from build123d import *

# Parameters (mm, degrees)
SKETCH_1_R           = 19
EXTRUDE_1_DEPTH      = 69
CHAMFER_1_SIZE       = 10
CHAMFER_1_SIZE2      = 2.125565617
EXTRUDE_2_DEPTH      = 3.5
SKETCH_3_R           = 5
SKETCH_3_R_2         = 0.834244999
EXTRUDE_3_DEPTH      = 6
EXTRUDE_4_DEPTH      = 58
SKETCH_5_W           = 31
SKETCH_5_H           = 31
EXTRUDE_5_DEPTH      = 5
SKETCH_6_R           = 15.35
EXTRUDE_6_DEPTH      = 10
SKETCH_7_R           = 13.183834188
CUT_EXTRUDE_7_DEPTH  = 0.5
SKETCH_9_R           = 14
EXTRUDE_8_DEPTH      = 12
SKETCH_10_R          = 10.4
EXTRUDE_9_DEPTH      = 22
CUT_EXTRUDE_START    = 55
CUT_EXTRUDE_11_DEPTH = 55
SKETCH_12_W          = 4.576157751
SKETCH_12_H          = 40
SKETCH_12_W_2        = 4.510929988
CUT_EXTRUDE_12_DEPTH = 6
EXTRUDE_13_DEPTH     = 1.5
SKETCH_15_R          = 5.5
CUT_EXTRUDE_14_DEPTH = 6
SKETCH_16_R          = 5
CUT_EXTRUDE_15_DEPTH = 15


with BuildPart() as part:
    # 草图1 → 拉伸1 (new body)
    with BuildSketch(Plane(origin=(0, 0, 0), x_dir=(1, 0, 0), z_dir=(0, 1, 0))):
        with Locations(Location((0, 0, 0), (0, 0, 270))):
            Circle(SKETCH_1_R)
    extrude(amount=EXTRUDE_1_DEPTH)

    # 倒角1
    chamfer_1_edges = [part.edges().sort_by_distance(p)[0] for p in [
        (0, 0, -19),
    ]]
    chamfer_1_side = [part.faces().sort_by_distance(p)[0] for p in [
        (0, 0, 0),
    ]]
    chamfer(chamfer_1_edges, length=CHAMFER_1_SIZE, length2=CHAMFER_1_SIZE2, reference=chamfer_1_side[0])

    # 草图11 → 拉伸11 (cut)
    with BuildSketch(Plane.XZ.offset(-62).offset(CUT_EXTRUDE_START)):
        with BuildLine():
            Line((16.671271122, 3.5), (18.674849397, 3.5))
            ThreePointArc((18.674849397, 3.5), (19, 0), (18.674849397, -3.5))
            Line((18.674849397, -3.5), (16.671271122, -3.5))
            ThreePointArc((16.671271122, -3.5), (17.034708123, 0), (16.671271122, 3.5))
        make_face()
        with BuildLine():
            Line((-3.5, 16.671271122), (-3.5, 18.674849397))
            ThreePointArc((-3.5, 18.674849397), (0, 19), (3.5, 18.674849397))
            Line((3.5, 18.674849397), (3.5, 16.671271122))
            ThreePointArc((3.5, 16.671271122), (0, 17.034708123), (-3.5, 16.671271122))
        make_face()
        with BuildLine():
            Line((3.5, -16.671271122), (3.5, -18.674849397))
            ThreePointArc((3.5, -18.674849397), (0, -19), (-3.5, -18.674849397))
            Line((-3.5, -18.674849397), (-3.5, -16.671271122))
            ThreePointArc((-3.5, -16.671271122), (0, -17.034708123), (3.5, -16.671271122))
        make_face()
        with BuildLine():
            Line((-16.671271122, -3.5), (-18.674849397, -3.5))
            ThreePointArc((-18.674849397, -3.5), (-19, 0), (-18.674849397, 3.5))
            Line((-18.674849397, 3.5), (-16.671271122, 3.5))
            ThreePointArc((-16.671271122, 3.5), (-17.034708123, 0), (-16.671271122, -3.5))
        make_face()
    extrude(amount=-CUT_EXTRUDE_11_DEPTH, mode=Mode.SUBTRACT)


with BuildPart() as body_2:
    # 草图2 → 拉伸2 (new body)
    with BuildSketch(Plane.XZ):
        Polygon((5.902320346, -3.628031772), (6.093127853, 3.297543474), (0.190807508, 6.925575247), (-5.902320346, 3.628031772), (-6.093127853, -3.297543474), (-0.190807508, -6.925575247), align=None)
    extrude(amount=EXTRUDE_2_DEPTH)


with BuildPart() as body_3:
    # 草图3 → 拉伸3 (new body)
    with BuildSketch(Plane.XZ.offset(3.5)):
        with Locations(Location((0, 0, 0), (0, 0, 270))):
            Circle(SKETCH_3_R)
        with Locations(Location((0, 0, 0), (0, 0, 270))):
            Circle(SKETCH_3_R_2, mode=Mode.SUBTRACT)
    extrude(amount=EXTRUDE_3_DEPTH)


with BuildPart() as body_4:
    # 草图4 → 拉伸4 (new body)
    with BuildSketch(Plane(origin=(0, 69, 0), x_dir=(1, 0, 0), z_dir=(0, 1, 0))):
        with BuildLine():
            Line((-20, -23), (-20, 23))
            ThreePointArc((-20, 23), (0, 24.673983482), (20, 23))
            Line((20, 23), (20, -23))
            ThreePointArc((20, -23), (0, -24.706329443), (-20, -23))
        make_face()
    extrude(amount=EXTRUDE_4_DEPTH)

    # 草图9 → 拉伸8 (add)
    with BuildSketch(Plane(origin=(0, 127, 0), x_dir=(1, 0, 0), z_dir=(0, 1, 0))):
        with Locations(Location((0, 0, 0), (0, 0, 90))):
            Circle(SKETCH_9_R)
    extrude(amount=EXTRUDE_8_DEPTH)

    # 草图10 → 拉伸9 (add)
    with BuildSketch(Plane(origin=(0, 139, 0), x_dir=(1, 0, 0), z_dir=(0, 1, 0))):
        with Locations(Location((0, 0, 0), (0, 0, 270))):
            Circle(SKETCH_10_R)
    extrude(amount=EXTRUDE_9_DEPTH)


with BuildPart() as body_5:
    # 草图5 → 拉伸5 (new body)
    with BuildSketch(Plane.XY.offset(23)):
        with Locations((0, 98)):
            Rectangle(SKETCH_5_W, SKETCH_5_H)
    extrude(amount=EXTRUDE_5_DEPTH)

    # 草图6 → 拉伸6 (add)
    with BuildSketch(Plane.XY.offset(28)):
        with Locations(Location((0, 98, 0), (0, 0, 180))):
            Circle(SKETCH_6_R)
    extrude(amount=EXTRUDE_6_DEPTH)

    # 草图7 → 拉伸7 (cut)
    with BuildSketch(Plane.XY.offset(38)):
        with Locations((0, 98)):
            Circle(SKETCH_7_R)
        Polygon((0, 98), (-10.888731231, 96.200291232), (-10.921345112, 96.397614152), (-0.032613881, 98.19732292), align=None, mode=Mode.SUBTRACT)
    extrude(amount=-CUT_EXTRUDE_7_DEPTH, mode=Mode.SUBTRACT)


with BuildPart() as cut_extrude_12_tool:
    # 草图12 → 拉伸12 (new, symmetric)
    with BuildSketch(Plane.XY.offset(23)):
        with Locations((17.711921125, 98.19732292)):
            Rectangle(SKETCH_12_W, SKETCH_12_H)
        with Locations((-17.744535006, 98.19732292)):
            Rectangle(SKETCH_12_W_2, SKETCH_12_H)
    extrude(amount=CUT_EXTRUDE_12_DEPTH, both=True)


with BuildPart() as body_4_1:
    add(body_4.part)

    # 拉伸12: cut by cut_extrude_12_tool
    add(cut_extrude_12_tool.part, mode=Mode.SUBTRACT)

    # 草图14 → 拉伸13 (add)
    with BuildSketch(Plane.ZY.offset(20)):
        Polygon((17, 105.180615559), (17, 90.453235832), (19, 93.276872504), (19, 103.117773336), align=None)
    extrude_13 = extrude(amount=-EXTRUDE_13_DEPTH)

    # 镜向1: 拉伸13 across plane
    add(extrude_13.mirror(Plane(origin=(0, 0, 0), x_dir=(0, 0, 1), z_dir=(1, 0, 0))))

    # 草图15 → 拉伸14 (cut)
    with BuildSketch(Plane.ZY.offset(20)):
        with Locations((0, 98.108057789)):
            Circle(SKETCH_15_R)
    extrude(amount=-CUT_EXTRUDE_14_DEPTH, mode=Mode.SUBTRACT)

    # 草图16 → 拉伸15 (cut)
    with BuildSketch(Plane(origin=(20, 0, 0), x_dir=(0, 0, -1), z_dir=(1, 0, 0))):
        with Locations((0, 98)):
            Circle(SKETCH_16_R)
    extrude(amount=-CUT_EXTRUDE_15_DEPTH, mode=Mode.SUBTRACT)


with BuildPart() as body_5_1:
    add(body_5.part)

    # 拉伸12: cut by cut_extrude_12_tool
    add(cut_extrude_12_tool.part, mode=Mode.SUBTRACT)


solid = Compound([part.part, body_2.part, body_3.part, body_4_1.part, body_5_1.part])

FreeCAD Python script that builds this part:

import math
import FreeCAD as App
import Part
import Sketcher


def edges_at(feature, points):
    """Names of the edges that pass closest to the given points."""
    edges = feature.Shape.Edges
    near = lambda p: min(range(len(edges)), key=lambda i: edges[i].distToShape(Part.Vertex(*p))[0])
    return sorted({f"Edge{near(p) + 1}" for p in points})


def add_polygon(sketch, points):
    """Adds a closed chain of lines whose ends are joined by coincident constraints."""
    first, n = sketch.GeometryCount, len(points)
    for a, b in zip(points, points[1:] + points[:1]):
        sketch.addGeometry(Part.LineSegment(App.Vector(*a, 0), App.Vector(*b, 0)), False)
    for i in range(n):
        sketch.addConstraint(Sketcher.Constraint("Coincident", first + i, 2, first + (i + 1) % n, 1))

doc = App.newDocument("Part")
params = doc.addObject("Spreadsheet::Sheet", "Params")
for row, (alias, value) in enumerate([
    ("sketch1_diameter", "38 mm"),
    ("pad1_length", "69 mm"),
    ("chamfer_size", "10 mm"),
    ("chamfer_size2", "2.125566 mm"),
    ("sketch2_radius", "19 mm"),
    ("pocket1_length", "55 mm"),
    ("pad2_length", "3.5 mm"),
    ("sketch4_diameter", "10 mm"),
    ("pad3_length", "6 mm"),
    ("sketch5_height", "46 mm"),
    ("pad4_length", "58 mm"),
    ("sketch6_diameter", "28 mm"),
    ("pad5_length", "12 mm"),
    ("sketch7_diameter", "20.8 mm"),
    ("pad6_length", "22 mm"),
    ("sketch8_width", "31 mm"),
    ("pad7_length", "5 mm"),
    ("sketch9_diameter", "30.7 mm"),
    ("pad8_length", "10 mm"),
    ("sketch10_length", "0.2 mm"),
    ("pocket2_length", "0.5 mm"),
    ("sketch11_height", "40 mm"),
    ("pad9_length", "12 mm"),
    ("pad10_length", "1.5 mm"),
    ("sketch13_diameter", "11 mm"),
    ("pocket3_length", "6 mm"),
    ("sketch14_diameter", "10 mm"),
    ("pocket4_length", "15 mm"),
], start=1):
    params.set(f"A{row}", alias)
    params.set(f"B{row}", "=" + value)
    params.setAlias(f"B{row}", alias)

body = doc.addObject("PartDesign::Body", "Body")

sketch1 = doc.addObject("Sketcher::SketchObject", "Sketch")
body.addObject(sketch1)
sketch1.AttachmentSupport = (doc.XZ_Plane, [""])
sketch1.MapMode = "FlatFace"
sketch1.addGeometry(Part.Circle(App.Vector(0, 0, 0), App.Vector(0, 0, 1), 19), False)
sketch1.addConstraint(Sketcher.Constraint("Coincident", 0, 3, -1, 1))
sketch1.addConstraint(Sketcher.Constraint("Diameter", 0, 38.0))
sketch1.setExpression("Constraints[1]", "Params.sketch1_diameter")
pad1 = doc.addObject("PartDesign::Pad", "Pad")
body.addObject(pad1)
pad1.Profile = sketch1
pad1.setExpression("Length", "Params.pad1_length")
pad1.Reversed = True
doc.recompute()

chamfer = doc.addObject("PartDesign::Chamfer", "Chamfer")
body.addObject(chamfer)
chamfer.Base = (pad1, edges_at(pad1, [(0, 0, -19)]))
chamfer.ChamferType = "Two distances"
chamfer.setExpression("Size", "Params.chamfer_size")
chamfer.setExpression("Size2", "Params.chamfer_size2")
chamfer.FlipDirection = True

sketch2 = doc.addObject("Sketcher::SketchObject", "Sketch001")
body.addObject(sketch2)
sketch2.AttachmentSupport = (doc.XZ_Plane, [""])
sketch2.MapMode = "FlatFace"
sketch2.AttachmentOffset = App.Placement(App.Vector(0, 0, -7), App.Rotation())
sketch2.addGeometry(Part.LineSegment(App.Vector(18.674849, 3.5, 0), App.Vector(16.671271, 3.5, 0)), False)
sketch2.addGeometry(Part.ArcOfCircle(Part.Circle(App.Vector(0, 0, 0), App.Vector(0, 0, 1), 17.034708), math.radians(-11.856596), math.radians(11.856596)), False)
sketch2.addGeometry(Part.LineSegment(App.Vector(16.671271, -3.5, 0), App.Vector(18.674849, -3.5, 0)), False)
sketch2.addGeometry(Part.ArcOfCircle(Part.Circle(App.Vector(0, 0, 0), App.Vector(0, 0, 1), 19), math.radians(-10.615108), math.radians(10.615108)), False)
sketch2.addGeometry(Part.LineSegment(App.Vector(-3.5, 18.674849, 0), App.Vector(-3.5, 16.671271, 0)), False)
sketch2.addGeometry(Part.ArcOfCircle(Part.Circle(App.Vector(0, 0, 0), App.Vector(0, 0, 1), 17.034708), math.radians(78.143404), math.radians(101.856596)), False)
sketch2.addGeometry(Part.LineSegment(App.Vector(3.5, 16.671271, 0), App.Vector(3.5, 18.674849, 0)), False)
sketch2.addGeometry(Part.ArcOfCircle(Part.Circle(App.Vector(0, 0, 0), App.Vector(0, 0, 1), 19), math.radians(79.384892), math.radians(100.615108)), False)
sketch2.addGeometry(Part.LineSegment(App.Vector(3.5, -18.674849, 0), App.Vector(3.5, -16.671271, 0)), False)
sketch2.addGeometry(Part.ArcOfCircle(Part.Circle(App.Vector(0, 0, 0), App.Vector(0, 0, 1), 17.034708), math.radians(-101.856596), math.radians(-78.143404)), False)
sketch2.addGeometry(Part.LineSegment(App.Vector(-3.5, -16.671271, 0), App.Vector(-3.5, -18.674849, 0)), False)
sketch2.addGeometry(Part.ArcOfCircle(Part.Circle(App.Vector(0, 0, 0), App.Vector(0, 0, 1), 19), math.radians(-100.615108), math.radians(-79.384892)), False)
sketch2.addGeometry(Part.LineSegment(App.Vector(-18.674849, -3.5, 0), App.Vector(-16.671271, -3.5, 0)), False)
sketch2.addGeometry(Part.ArcOfCircle(Part.Circle(App.Vector(0, 0, 0), App.Vector(0, 0, 1), 17.034708), math.radians(168.143404), math.radians(191.856596)), False)
sketch2.addGeometry(Part.LineSegment(App.Vector(-16.671271, 3.5, 0), App.Vector(-18.674849, 3.5, 0)), False)
sketch2.addGeometry(Part.ArcOfCircle(Part.Circle(App.Vector(0, 0, 0), App.Vector(0, 0, 1), 19), math.radians(169.384892), math.radians(190.615108)), False)
sketch2.addConstraint(Sketcher.Constraint("Coincident", 0, 2, 1, 2))
sketch2.addConstraint(Sketcher.Constraint("Coincident", 1, 1, 2, 1))
sketch2.addConstraint(Sketcher.Constraint("Coincident", 2, 2, 3, 1))
sketch2.addConstraint(Sketcher.Constraint("Coincident", 3, 2, 0, 1))
sketch2.addConstraint(Sketcher.Constraint("Coincident", 4, 2, 5, 2))
sketch2.addConstraint(Sketcher.Constraint("Coincident", 5, 1, 6, 1))
sketch2.addConstraint(Sketcher.Constraint("Coincident", 6, 2, 7, 1))
sketch2.addConstraint(Sketcher.Constraint("Coincident", 7, 2, 4, 1))
sketch2.addConstraint(Sketcher.Constraint("Coincident", 8, 2, 9, 2))
sketch2.addConstraint(Sketcher.Constraint("Coincident", 9, 1, 10, 1))
sketch2.addConstraint(Sketcher.Constraint("Coincident", 10, 2, 11, 1))
sketch2.addConstraint(Sketcher.Constraint("Coincident", 11, 2, 8, 1))
sketch2.addConstraint(Sketcher.Constraint("Coincident", 12, 2, 13, 2))
sketch2.addConstraint(Sketcher.Constraint("Coincident", 13, 1, 14, 1))
sketch2.addConstraint(Sketcher.Constraint("Coincident", 14, 2, 15, 1))
sketch2.addConstraint(Sketcher.Constraint("Coincident", 15, 2, 12, 1))
sketch2.addConstraint(Sketcher.Constraint("Horizontal", 0))
sketch2.addConstraint(Sketcher.Constraint("Horizontal", 2))
sketch2.addConstraint(Sketcher.Constraint("Vertical", 4))
sketch2.addConstraint(Sketcher.Constraint("Vertical", 6))
sketch2.addConstraint(Sketcher.Constraint("Vertical", 8))
sketch2.addConstraint(Sketcher.Constraint("Vertical", 10))
sketch2.addConstraint(Sketcher.Constraint("Horizontal", 12))
sketch2.addConstraint(Sketcher.Constraint("Horizontal", 14))
sketch2.addConstraint(Sketcher.Constraint("Coincident", 1, 3, -1, 1))
sketch2.addConstraint(Sketcher.Constraint("Coincident", 3, 3, -1, 1))
sketch2.addConstraint(Sketcher.Constraint("Coincident", 5, 3, -1, 1))
sketch2.addConstraint(Sketcher.Constraint("Coincident", 7, 3, -1, 1))
sketch2.addConstraint(Sketcher.Constraint("Coincident", 9, 3, -1, 1))
sketch2.addConstraint(Sketcher.Constraint("Coincident", 11, 3, -1, 1))
sketch2.addConstraint(Sketcher.Constraint("Coincident", 13, 3, -1, 1))
sketch2.addConstraint(Sketcher.Constraint("Coincident", 15, 3, -1, 1))
sketch2.addConstraint(Sketcher.Constraint("Equal", 1, 5))
sketch2.addConstraint(Sketcher.Constraint("Equal", 3, 7))
sketch2.addConstraint(Sketcher.Constraint("Equal", 5, 9))
sketch2.addConstraint(Sketcher.Constraint("Equal", 7, 11))
sketch2.addConstraint(Sketcher.Constraint("Equal", 9, 13))
sketch2.addConstraint(Sketcher.Constraint("Equal", 11, 15))
sketch2.addConstraint(Sketcher.Constraint("Horizontal", 4, 2, 5, 1))
sketch2.addConstraint(Sketcher.Constraint("Horizontal", 8, 2, 9, 1))
sketch2.addConstraint(Sketcher.Constraint("Horizontal", 2, 2, 12, 2))
sketch2.addConstraint(Sketcher.Constraint("Horizontal", 3, 2, 13, 1))
sketch2.addConstraint(Sketcher.Constraint("Vertical", 0, 2, 1, 1))
sketch2.addConstraint(Sketcher.Constraint("Vertical", 6, 2, 8, 2))
sketch2.addConstraint(Sketcher.Constraint("Equal", 14, 4))
sketch2.addConstraint(Sketcher.Constraint("Radius", 3, 19.0))
sketch2.addConstraint(Sketcher.Constraint("DistanceY", 1, 1, 0, 2, 7.0))
sketch2.addConstraint(Sketcher.Constraint("Radius", 1, 17.034708))
sketch2.setExpression("Constraints[45]", "Params.sketch2_radius")
pocket1 = doc.addObject("PartDesign::Pocket", "Pocket")
body.addObject(pocket1)
pocket1.Profile = sketch2
pocket1.setExpression("Length", "Params.pocket1_length")
body2 = doc.addObject("PartDesign::Body", "Body001")

sketch3 = doc.addObject("Sketcher::SketchObject", "Sketch002")
body2.addObject(sketch3)
sketch3.AttachmentSupport = (doc.getObject("XZ_Plane001"), [""])
sketch3.MapMode = "FlatFace"
add_polygon(sketch3, [(5.90232, -3.628032), (6.093128, 3.297543), (0.190808, 6.925575), (-5.90232, 3.628032), (-6.093128, -3.297543), (-0.190808, -6.925575)])
sketch3.addConstraint(Sketcher.Constraint("Symmetric", 0, 2, 3, 2, -1, 1))
sketch3.addConstraint(Sketcher.Constraint("Symmetric", 1, 2, 4, 2, -1, 1))
sketch3.addConstraint(Sketcher.Constraint("Symmetric", 2, 2, 5, 2, -1, 1))
sketch3.addConstraint(Sketcher.Constraint("Equal", 0, 1))
sketch3.addConstraint(Sketcher.Constraint("Equal", 1, 2))
sketch3.addConstraint(Sketcher.Constraint("DistanceX", 2, 2, -1, 1, 5.90232))
sketch3.addConstraint(Sketcher.Constraint("DistanceY", -1, 1, 2, 2, 3.628032))
sketch3.addConstraint(Sketcher.Constraint("DistanceX", 1, 2, 0, 2, 5.90232))
sketch3.addConstraint(Sketcher.Constraint("DistanceY", 0, 2, 1, 2, 3.628032))
pad2 = doc.addObject("PartDesign::Pad", "Pad001")
body2.addObject(pad2)
pad2.Profile = sketch3
pad2.setExpression("Length", "Params.pad2_length")
body3 = doc.addObject("PartDesign::Body", "Body002")

sketch4 = doc.addObject("Sketcher::SketchObject", "Sketch003")
body3.addObject(sketch4)
sketch4.AttachmentSupport = (doc.getObject("XZ_Plane002"), [""])
sketch4.MapMode = "FlatFace"
sketch4.AttachmentOffset = App.Placement(App.Vector(0, 0, 3.5), App.Rotation())
sketch4.addGeometry(Part.Circle(App.Vector(0, 0, 0), App.Vector(0, 0, 1), 5), False)
sketch4.addGeometry(Part.Circle(App.Vector(0, 0, 0), App.Vector(0, 0, 1), 0.834245), False)
sketch4.addConstraint(Sketcher.Constraint("Coincident", 0, 3, -1, 1))
sketch4.addConstraint(Sketcher.Constraint("Coincident", 1, 3, -1, 1))
sketch4.addConstraint(Sketcher.Constraint("Diameter", 0, 10.0))
sketch4.addConstraint(Sketcher.Constraint("Diameter", 1, 1.66849))
sketch4.setExpression("Constraints[2]", "Params.sketch4_diameter")
pad3 = doc.addObject("PartDesign::Pad", "Pad002")
body3.addObject(pad3)
pad3.Profile = sketch4
pad3.setExpression("Length", "Params.pad3_length")
body4 = doc.addObject("PartDesign::Body", "Body003")

sketch5 = doc.addObject("Sketcher::SketchObject", "Sketch004")
body4.addObject(sketch5)
sketch5.AttachmentSupport = (doc.getObject("XZ_Plane003"), [""])
sketch5.MapMode = "FlatFace"
sketch5.AttachmentOffset = App.Placement(App.Vector(0, 0, -69), App.Rotation())
sketch5.addGeometry(Part.LineSegment(App.Vector(-20, -23, 0), App.Vector(-20, 23, 0)), False)
sketch5.addGeometry(Part.ArcOfCircle(Part.Circle(App.Vector(0, -93.357495, 0), App.Vector(0, 0, 1), 118.063825), math.radians(80.24707), math.radians(99.75293)), False)
sketch5.addGeometry(Part.LineSegment(App.Vector(20, 23, 0), App.Vector(20, -23, 0)), False)
sketch5.addGeometry(Part.ArcOfCircle(Part.Circle(App.Vector(0, 95.6385, 0), App.Vector(0, 0, 1), 120.312484), math.radians(-99.568915), math.radians(-80.431085)), False)
sketch5.addConstraint(Sketcher.Constraint("Coincident", 0, 2, 1, 2))
sketch5.addConstraint(Sketcher.Constraint("Coincident", 1, 1, 2, 1))
sketch5.addConstraint(Sketcher.Constraint("Coincident", 2, 2, 3, 2))
sketch5.addConstraint(Sketcher.Constraint("Coincident", 3, 1, 0, 1))
sketch5.addConstraint(Sketcher.Constraint("Vertical", 0))
sketch5.addConstraint(Sketcher.Constraint("Vertical", 2))
sketch5.addConstraint(Sketcher.Constraint("Symmetric", 0, 2, 2, 2, -1, 1))
sketch5.addConstraint(Sketcher.Constraint("PointOnObject", 1, 3, -2))
sketch5.addConstraint(Sketcher.Constraint("PointOnObject", 3, 3, -2))
sketch5.addConstraint(Sketcher.Constraint("DistanceY", 0, 1, 0, 2, 46.0))
sketch5.addConstraint(Sketcher.Constraint("DistanceX", 0, 2, -1, 1, 20.0))
sketch5.addConstraint(Sketcher.Constraint("Radius", 1, 118.063825))
sketch5.addConstraint(Sketcher.Constraint("Radius", 3, 120.312484))
sketch5.setExpression("Constraints[9]", "Params.sketch5_height")
pad4 = doc.addObject("PartDesign::Pad", "Pad003")
body4.addObject(pad4)
pad4.Profile = sketch5
pad4.setExpression("Length", "Params.pad4_length")
pad4.Reversed = True

sketch6 = doc.addObject("Sketcher::SketchObject", "Sketch005")
body4.addObject(sketch6)
sketch6.AttachmentSupport = (doc.getObject("XZ_Plane003"), [""])
sketch6.MapMode = "FlatFace"
sketch6.AttachmentOffset = App.Placement(App.Vector(0, 0, -127), App.Rotation())
sketch6.addGeometry(Part.Circle(App.Vector(0, 0, 0), App.Vector(0, 0, 1), 14), False)
sketch6.addConstraint(Sketcher.Constraint("Coincident", 0, 3, -1, 1))
sketch6.addConstraint(Sketcher.Constraint("Diameter", 0, 28.0))
sketch6.setExpression("Constraints[1]", "Params.sketch6_diameter")
pad5 = doc.addObject("PartDesign::Pad", "Pad004")
body4.addObject(pad5)
pad5.Profile = sketch6
pad5.setExpression("Length", "Params.pad5_length")
pad5.Reversed = True

sketch7 = doc.addObject("Sketcher::SketchObject", "Sketch006")
body4.addObject(sketch7)
sketch7.AttachmentSupport = (doc.getObject("XZ_Plane003"), [""])
sketch7.MapMode = "FlatFace"
sketch7.AttachmentOffset = App.Placement(App.Vector(0, 0, -139), App.Rotation())
sketch7.addGeometry(Part.Circle(App.Vector(0, 0, 0), App.Vector(0, 0, 1), 10.4), False)
sketch7.addConstraint(Sketcher.Constraint("Coincident", 0, 3, -1, 1))
sketch7.addConstraint(Sketcher.Constraint("Diameter", 0, 20.8))
sketch7.setExpression("Constraints[1]", "Params.sketch7_diameter")
pad6 = doc.addObject("PartDesign::Pad", "Pad005")
body4.addObject(pad6)
pad6.Profile = sketch7
pad6.setExpression("Length", "Params.pad6_length")
pad6.Reversed = True
body5 = doc.addObject("PartDesign::Body", "Body004")

sketch8 = doc.addObject("Sketcher::SketchObject", "Sketch007")
body5.addObject(sketch8)
sketch8.AttachmentSupport = (doc.getObject("XY_Plane004"), [""])
sketch8.MapMode = "FlatFace"
sketch8.AttachmentOffset = App.Placement(App.Vector(0, 0, 23), App.Rotation())
add_polygon(sketch8, [(-15.5, 113.5), (-15.5, 82.5), (15.5, 82.5), (15.5, 113.5)])
sketch8.addConstraint(Sketcher.Constraint("Vertical", 0))
sketch8.addConstraint(Sketcher.Constraint("Horizontal", 1))
sketch8.addConstraint(Sketcher.Constraint("Vertical", 2))
sketch8.addConstraint(Sketcher.Constraint("Horizontal", 3))
sketch8.addConstraint(Sketcher.Constraint("Equal", 3, 0))
sketch8.addConstraint(Sketcher.Constraint("DistanceX", 1, 1, 1, 2, 31.0))
sketch8.addConstraint(Sketcher.Constraint("DistanceX", 0, 2, -1, 1, 15.5))
sketch8.addConstraint(Sketcher.Constraint("DistanceY", -1, 1, 0, 2, 82.5))
sketch8.setExpression("Constraints[9]", "Params.sketch8_width")
pad7 = doc.addObject("PartDesign::Pad", "Pad006")
body5.addObject(pad7)
pad7.Profile = sketch8
pad7.setExpression("Length", "Params.pad7_length")

sketch9 = doc.addObject("Sketcher::SketchObject", "Sketch008")
body5.addObject(sketch9)
sketch9.AttachmentSupport = (doc.getObject("XY_Plane004"), [""])
sketch9.MapMode = "FlatFace"
sketch9.AttachmentOffset = App.Placement(App.Vector(0, 0, 28), App.Rotation())
sketch9.addGeometry(Part.Circle(App.Vector(0, 98, 0), App.Vector(0, 0, 1), 15.35), False)
sketch9.addConstraint(Sketcher.Constraint("PointOnObject", 0, 3, -2))
sketch9.addConstraint(Sketcher.Constraint("Diameter", 0, 30.7))
sketch9.addConstraint(Sketcher.Constraint("DistanceY", -1, 1, 0, 3, 98.0))
sketch9.setExpression("Constraints[1]", "Params.sketch9_diameter")
pad8 = doc.addObject("PartDesign::Pad", "Pad007")
body5.addObject(pad8)
pad8.Profile = sketch9
pad8.setExpression("Length", "Params.pad8_length")

sketch10 = doc.addObject("Sketcher::SketchObject", "Sketch009")
body5.addObject(sketch10)
sketch10.AttachmentSupport = (doc.getObject("XY_Plane004"), [""])
sketch10.MapMode = "FlatFace"
sketch10.AttachmentOffset = App.Placement(App.Vector(0, 0, 38), App.Rotation())
sketch10.addGeometry(Part.Circle(App.Vector(0, 98, 0), App.Vector(0, 0, 1), 13.183834), False)
add_polygon(sketch10, [(-0.032614, 98.197323), (0, 98), (-10.888731, 96.200291), (-10.921345, 96.397614)])
sketch10.addConstraint(Sketcher.Constraint("Coincident", 1, 2, 0, 3))
sketch10.addConstraint(Sketcher.Constraint("PointOnObject", 0, 3, -2))
sketch10.addConstraint(Sketcher.Constraint("Perpendicular", 1, 2))
sketch10.addConstraint(Sketcher.Constraint("Perpendicular", 2, 3))
sketch10.addConstraint(Sketcher.Constraint("Perpendicular", 3, 4))
sketch10.addConstraint(Sketcher.Constraint("DistanceY", -1, 1, 0, 3, 98.0))
sketch10.addConstraint(Sketcher.Constraint("Distance", 1, 0.2))
sketch10.addConstraint(Sketcher.Constraint("Diameter", 0, 26.367668))
sketch10.addConstraint(Sketcher.Constraint("Distance", 2, 11.036459))
sketch10.addConstraint(Sketcher.Constraint("DistanceX", 2, 2, -1, 1, 10.888731))
sketch10.setExpression("Constraints[10]", "Params.sketch10_length")
pocket2 = doc.addObject("PartDesign::Pocket", "Pocket001")
body5.addObject(pocket2)
pocket2.Profile = sketch10
pocket2.setExpression("Length", "Params.pocket2_length")
body6 = doc.addObject("PartDesign::Body", "Body005")
body6.AllowCompound = True

sketch11 = doc.addObject("Sketcher::SketchObject", "Sketch010")
body6.addObject(sketch11)
sketch11.AttachmentSupport = (doc.getObject("XY_Plane005"), [""])
sketch11.MapMode = "FlatFace"
sketch11.AttachmentOffset = App.Placement(App.Vector(0, 0, 23), App.Rotation())
add_polygon(sketch11, [(15.423842, 118.197323), (15.423842, 78.197323), (20, 78.197323), (20, 118.197323)])
add_polygon(sketch11, [(-20, 118.197323), (-20, 78.197323), (-15.48907, 78.197323), (-15.48907, 118.197323)])
sketch11.addConstraint(Sketcher.Constraint("Vertical", 0))
sketch11.addConstraint(Sketcher.Constraint("Horizontal", 1))
sketch11.addConstraint(Sketcher.Constraint("Vertical", 2))
sketch11.addConstraint(Sketcher.Constraint("Horizontal", 3))
sketch11.addConstraint(Sketcher.Constraint("Vertical", 4))
sketch11.addConstraint(Sketcher.Constraint("Horizontal", 5))
sketch11.addConstraint(Sketcher.Constraint("Vertical", 6))
sketch11.addConstraint(Sketcher.Constraint("Horizontal", 7))
sketch11.addConstraint(Sketcher.Constraint("Symmetric", 1, 2, 4, 2, -2))
sketch11.addConstraint(Sketcher.Constraint("Horizontal", 3, 2, 6, 2))
sketch11.addConstraint(Sketcher.Constraint("DistanceY", 0, 2, 0, 1, 40.0))
sketch11.addConstraint(Sketcher.Constraint("DistanceX", -1, 1, 1, 2, 20.0))
sketch11.addConstraint(Sketcher.Constraint("DistanceX", 5, 1, 5, 2, 4.51093))
sketch11.addConstraint(Sketcher.Constraint("DistanceX", 1, 1, 1, 2, 4.576158))
sketch11.addConstraint(Sketcher.Constraint("DistanceY", -1, 1, 0, 2, 78.197323))
sketch11.setExpression("Constraints[18]", "Params.sketch11_height")
pad9 = doc.addObject("PartDesign::Pad", "Pad008")
body6.addObject(pad9)
pad9.Profile = sketch11
pad9.setExpression("Length", "Params.pad9_length")
pad9.Midplane = True
doc.recompute()

body7 = doc.addObject("PartDesign::Body", "Body006")
body7.BaseFeature = body6
boolean = doc.addObject("PartDesign::Boolean", "Boolean")
body4.addObject(boolean)
boolean.Type = "Cut"
boolean.addObjects([body7])
doc.recompute()

sketch12 = doc.addObject("Sketcher::SketchObject", "Sketch011")
body4.addObject(sketch12)
sketch12.AttachmentSupport = (doc.getObject("YZ_Plane003"), [""])
sketch12.MapMode = "FlatFace"
sketch12.AttachmentOffset = App.Placement(App.Vector(0, 0, -20), App.Rotation())
add_polygon(sketch12, [(105.180616, 17), (90.453236, 17), (93.276873, 19), (103.117773, 19)])
sketch12.addConstraint(Sketcher.Constraint("Horizontal", 0))
sketch12.addConstraint(Sketcher.Constraint("Horizontal", 2))
sketch12.addConstraint(Sketcher.Constraint("DistanceY", -1, 1, 0, 2, 17.0))
sketch12.addConstraint(Sketcher.Constraint("DistanceY", -1, 1, 1, 2, 19.0))
sketch12.addConstraint(Sketcher.Constraint("DistanceX", 2, 1, 2, 2, 9.840901))
sketch12.addConstraint(Sketcher.Constraint("DistanceX", 0, 2, 0, 1, 14.72738))
sketch12.addConstraint(Sketcher.Constraint("Distance", 1, 3.460191))
sketch12.addConstraint(Sketcher.Constraint("DistanceX", -1, 1, 0, 2, 90.453236))
pad10 = doc.addObject("PartDesign::Pad", "Pad009")
body4.addObject(pad10)
pad10.Profile = sketch12
pad10.setExpression("Length", "Params.pad10_length")
doc.recompute()

mirrored = doc.addObject("PartDesign::Mirrored", "Mirrored")
body4.addObject(mirrored)
mirrored.Originals = [pad10]
mirrored.MirrorPlane = (doc.getObject("YZ_Plane003"), [""])
body4.Tip = mirrored

sketch13 = doc.addObject("Sketcher::SketchObject", "Sketch012")
body4.addObject(sketch13)
sketch13.AttachmentSupport = (doc.getObject("YZ_Plane003"), [""])
sketch13.MapMode = "FlatFace"
sketch13.AttachmentOffset = App.Placement(App.Vector(0, 0, -20), App.Rotation())
sketch13.addGeometry(Part.Circle(App.Vector(98.108058, 0, 0), App.Vector(0, 0, 1), 5.5), False)
sketch13.addConstraint(Sketcher.Constraint("PointOnObject", 0, 3, -1))
sketch13.addConstraint(Sketcher.Constraint("Diameter", 0, 11.0))
sketch13.addConstraint(Sketcher.Constraint("DistanceX", -1, 1, 0, 3, 98.108058))
sketch13.setExpression("Constraints[1]", "Params.sketch13_diameter")
pocket3 = doc.addObject("PartDesign::Pocket", "Pocket002")
body4.addObject(pocket3)
pocket3.Profile = sketch13
pocket3.setExpression("Length", "Params.pocket3_length")
pocket3.Reversed = True

sketch14 = doc.addObject("Sketcher::SketchObject", "Sketch013")
body4.addObject(sketch14)
sketch14.AttachmentSupport = (doc.getObject("YZ_Plane003"), [""])
sketch14.MapMode = "FlatFace"
sketch14.AttachmentOffset = App.Placement(App.Vector(0, 0, 20), App.Rotation())
sketch14.addGeometry(Part.Circle(App.Vector(98, 0, 0), App.Vector(0, 0, 1), 5), False)
sketch14.addConstraint(Sketcher.Constraint("PointOnObject", 0, 3, -1))
sketch14.addConstraint(Sketcher.Constraint("Diameter", 0, 10.0))
sketch14.addConstraint(Sketcher.Constraint("DistanceX", -1, 1, 0, 3, 98.0))
sketch14.setExpression("Constraints[1]", "Params.sketch14_diameter")
pocket4 = doc.addObject("PartDesign::Pocket", "Pocket003")
body4.addObject(pocket4)
pocket4.Profile = sketch14
pocket4.setExpression("Length", "Params.pocket4_length")
doc.recompute()

boolean2 = doc.addObject("PartDesign::Boolean", "Boolean001")
body5.addObject(boolean2)
boolean2.Type = "Cut"
boolean2.addObjects([body6])

doc.recompute()
